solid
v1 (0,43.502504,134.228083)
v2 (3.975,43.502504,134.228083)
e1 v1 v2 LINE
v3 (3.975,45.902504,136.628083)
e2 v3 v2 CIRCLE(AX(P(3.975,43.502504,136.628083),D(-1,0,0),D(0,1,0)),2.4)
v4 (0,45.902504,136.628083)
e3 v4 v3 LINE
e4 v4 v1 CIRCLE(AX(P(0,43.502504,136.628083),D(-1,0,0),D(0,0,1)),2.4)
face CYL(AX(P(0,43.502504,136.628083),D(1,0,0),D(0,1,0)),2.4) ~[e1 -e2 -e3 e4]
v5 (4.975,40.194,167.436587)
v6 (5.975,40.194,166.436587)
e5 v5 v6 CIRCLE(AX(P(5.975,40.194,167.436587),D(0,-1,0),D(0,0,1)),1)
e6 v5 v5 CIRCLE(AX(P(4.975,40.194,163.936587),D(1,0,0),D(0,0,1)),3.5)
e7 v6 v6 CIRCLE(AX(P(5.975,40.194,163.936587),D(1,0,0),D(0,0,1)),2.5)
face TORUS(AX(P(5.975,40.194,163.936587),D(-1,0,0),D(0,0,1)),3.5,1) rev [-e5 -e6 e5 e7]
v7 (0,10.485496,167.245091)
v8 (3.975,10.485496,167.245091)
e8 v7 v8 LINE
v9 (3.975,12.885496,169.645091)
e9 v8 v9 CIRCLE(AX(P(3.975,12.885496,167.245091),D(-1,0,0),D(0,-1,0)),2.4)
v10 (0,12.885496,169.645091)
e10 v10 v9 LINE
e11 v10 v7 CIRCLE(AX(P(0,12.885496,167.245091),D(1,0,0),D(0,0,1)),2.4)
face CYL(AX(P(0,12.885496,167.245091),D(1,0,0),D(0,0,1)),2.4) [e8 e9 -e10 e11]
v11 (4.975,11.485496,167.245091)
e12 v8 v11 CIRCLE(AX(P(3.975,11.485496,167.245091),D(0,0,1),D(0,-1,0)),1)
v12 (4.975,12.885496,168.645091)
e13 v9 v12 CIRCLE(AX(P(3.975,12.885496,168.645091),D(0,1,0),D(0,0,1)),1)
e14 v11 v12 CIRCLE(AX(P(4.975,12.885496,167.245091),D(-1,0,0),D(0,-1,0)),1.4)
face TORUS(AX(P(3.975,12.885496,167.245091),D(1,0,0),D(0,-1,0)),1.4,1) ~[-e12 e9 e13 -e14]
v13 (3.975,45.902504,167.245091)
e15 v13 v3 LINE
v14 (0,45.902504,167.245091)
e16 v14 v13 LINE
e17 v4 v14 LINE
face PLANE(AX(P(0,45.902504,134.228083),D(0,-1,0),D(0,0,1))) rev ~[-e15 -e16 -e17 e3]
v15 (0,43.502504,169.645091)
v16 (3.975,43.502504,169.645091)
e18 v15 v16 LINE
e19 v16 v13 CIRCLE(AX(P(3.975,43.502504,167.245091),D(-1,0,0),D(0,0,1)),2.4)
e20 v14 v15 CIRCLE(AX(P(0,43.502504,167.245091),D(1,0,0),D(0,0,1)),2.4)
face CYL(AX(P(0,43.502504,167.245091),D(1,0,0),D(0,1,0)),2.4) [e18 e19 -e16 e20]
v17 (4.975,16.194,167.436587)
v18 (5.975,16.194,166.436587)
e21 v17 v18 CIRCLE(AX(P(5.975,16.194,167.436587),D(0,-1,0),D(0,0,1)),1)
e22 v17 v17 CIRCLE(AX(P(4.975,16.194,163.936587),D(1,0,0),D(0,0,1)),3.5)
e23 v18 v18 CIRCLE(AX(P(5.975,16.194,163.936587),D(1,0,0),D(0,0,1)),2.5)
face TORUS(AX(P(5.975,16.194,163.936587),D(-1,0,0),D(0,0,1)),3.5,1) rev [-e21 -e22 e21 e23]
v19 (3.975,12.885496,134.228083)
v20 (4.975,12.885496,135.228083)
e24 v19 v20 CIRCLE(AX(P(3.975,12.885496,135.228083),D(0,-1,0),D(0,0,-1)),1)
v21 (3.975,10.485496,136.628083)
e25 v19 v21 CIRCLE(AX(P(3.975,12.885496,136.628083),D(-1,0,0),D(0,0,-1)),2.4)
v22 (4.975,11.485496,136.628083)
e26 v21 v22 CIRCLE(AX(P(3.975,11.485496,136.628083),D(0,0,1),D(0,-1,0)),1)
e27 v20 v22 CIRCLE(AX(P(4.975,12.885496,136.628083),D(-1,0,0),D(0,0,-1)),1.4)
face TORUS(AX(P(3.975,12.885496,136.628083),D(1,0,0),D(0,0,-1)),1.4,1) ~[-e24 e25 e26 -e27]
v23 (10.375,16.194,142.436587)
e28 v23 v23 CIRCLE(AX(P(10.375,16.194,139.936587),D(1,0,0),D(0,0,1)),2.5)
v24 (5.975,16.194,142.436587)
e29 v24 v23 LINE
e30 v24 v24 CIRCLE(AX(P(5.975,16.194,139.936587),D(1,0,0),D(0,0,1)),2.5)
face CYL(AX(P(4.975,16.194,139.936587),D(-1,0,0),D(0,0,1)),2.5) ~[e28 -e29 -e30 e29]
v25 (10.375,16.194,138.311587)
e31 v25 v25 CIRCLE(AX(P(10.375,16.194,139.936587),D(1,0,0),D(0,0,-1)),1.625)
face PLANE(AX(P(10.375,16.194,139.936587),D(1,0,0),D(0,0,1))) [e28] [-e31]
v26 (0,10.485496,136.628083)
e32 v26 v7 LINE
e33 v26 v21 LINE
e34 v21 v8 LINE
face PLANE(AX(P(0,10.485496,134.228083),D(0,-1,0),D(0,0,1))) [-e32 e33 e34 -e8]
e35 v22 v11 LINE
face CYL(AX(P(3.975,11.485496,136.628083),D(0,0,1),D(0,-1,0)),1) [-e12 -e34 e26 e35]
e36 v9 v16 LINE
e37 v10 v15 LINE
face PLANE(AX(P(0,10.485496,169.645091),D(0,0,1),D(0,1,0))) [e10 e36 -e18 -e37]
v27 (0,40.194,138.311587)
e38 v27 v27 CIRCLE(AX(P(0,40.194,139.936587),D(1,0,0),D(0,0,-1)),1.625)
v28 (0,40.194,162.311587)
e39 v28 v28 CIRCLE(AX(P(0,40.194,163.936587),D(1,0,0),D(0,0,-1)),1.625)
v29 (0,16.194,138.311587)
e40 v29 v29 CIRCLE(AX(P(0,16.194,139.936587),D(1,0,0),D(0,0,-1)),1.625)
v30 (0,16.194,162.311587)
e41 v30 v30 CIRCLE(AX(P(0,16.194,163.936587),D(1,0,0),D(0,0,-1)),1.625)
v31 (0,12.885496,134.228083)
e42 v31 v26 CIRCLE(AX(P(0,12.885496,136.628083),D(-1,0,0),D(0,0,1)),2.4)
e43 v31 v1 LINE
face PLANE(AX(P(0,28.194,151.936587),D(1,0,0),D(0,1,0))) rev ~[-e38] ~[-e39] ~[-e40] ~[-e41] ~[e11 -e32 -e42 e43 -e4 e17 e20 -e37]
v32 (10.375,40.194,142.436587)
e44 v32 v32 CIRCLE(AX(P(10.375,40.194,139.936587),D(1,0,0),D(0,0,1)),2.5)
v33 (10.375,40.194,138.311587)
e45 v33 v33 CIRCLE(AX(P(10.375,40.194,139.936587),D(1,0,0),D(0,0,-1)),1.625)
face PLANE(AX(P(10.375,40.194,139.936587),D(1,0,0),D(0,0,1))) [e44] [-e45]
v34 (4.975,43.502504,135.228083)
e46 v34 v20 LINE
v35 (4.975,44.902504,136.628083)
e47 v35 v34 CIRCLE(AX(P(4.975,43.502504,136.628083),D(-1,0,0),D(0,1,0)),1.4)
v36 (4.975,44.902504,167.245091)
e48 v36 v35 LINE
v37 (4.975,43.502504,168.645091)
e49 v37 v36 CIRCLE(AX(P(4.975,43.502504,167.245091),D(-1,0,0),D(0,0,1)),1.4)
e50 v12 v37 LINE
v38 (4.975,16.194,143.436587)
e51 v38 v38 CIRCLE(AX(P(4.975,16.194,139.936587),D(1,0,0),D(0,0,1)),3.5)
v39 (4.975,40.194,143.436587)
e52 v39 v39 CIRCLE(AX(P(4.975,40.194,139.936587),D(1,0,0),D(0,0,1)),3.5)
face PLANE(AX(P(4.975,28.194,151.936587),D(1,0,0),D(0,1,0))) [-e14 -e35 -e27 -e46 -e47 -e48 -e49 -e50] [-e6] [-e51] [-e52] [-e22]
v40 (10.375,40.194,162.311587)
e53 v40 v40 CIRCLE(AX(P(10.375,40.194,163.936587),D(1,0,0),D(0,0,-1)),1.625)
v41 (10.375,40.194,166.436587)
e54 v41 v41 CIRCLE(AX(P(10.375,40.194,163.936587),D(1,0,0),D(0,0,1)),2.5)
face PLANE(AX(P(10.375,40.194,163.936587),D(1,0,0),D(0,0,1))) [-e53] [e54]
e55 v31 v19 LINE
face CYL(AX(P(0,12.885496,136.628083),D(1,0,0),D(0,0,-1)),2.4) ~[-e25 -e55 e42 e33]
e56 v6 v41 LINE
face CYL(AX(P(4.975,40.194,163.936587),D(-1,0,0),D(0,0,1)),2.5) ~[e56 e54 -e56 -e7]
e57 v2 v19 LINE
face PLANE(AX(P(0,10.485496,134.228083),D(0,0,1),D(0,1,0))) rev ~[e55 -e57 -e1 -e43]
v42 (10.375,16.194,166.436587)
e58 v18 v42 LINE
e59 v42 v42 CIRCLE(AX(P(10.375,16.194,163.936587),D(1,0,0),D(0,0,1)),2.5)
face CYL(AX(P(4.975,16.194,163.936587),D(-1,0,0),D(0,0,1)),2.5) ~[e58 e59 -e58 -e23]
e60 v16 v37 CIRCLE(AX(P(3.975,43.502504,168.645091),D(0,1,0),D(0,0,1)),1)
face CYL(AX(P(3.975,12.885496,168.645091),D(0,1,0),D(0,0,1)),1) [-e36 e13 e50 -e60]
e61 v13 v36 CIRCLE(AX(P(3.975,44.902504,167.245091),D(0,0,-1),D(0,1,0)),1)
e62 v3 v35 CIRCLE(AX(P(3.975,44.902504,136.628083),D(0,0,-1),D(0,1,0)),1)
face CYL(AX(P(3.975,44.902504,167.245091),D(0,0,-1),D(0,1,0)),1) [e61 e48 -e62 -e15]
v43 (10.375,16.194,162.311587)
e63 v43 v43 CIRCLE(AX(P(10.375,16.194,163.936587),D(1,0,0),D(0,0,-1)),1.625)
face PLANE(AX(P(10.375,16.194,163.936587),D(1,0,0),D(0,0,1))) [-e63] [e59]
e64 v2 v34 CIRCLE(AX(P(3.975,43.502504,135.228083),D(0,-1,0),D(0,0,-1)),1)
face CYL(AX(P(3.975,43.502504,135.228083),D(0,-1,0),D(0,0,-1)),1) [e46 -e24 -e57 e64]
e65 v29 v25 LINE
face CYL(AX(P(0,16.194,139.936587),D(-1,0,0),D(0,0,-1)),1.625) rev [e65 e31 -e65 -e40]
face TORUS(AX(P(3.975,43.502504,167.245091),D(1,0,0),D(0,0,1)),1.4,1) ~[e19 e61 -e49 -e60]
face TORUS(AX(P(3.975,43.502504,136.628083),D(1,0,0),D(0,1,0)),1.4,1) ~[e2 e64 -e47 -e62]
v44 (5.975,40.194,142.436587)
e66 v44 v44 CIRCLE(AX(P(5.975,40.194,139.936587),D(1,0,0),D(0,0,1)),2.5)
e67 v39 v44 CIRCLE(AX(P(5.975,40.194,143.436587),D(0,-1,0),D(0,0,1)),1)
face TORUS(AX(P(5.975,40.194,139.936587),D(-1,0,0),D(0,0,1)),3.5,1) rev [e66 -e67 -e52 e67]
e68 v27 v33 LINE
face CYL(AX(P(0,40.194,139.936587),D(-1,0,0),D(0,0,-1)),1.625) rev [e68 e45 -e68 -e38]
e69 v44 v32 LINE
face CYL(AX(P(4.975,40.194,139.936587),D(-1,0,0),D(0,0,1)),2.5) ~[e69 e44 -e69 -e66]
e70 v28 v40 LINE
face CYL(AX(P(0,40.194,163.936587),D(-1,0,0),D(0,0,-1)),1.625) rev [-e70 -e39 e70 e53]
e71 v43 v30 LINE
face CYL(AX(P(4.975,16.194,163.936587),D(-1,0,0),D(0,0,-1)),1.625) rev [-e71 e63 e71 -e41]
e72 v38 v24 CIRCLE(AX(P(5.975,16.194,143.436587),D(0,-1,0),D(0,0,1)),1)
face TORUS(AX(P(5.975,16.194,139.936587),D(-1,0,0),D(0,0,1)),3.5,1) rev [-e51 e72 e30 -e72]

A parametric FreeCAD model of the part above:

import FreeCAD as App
import Part
import Sketcher

V = App.Vector
Q = App.Units.Quantity


def edges_at(feature, points):
    """Names of the edges that pass closest to the given points."""
    edges = feature.Shape.Edges
    near = lambda p: min(range(len(edges)), key=lambda i: edges[i].distToShape(Part.Vertex(*p))[0])
    return sorted({f"Edge{near(p) + 1}" for p in points})

doc = App.newDocument("Part")
body = doc.addObject("PartDesign::Body", "Body")

sketch1 = body.newObject("Sketcher::SketchObject", "Sketch")
sketch1.AttachmentSupport = (doc.getObject("YZ_Plane"), [""])
sketch1.MapMode = "FlatFace"
sketch1.addGeometry([
    Part.LineSegment(V(10.485496, 169.645091, 0), V(10.485496, 134.228083, 0)),
    Part.LineSegment(V(10.485496, 134.228083, 0), V(45.902504, 134.228083, 0)),
    Part.LineSegment(V(45.902504, 134.228083, 0), V(45.902504, 169.645091, 0)),
    Part.LineSegment(V(45.902504, 169.645091, 0), V(10.485496, 169.645091, 0)),
    Part.Circle(V(16.194, 139.936587, 0), V(0, 0, 1), 1.625),
    Part.Circle(V(40.194, 139.936587, 0), V(0, 0, 1), 1.625),
    Part.Circle(V(16.194, 163.936587, 0), V(0, 0, 1), 1.625),
    Part.Circle(V(40.194, 163.936587, 0), V(0, 0, 1), 1.625),
], False)
sketch1.addConstraint([
    Sketcher.Constraint("Coincident", 0, 2, 1, 1),
    Sketcher.Constraint("Coincident", 1, 2, 2, 1),
    Sketcher.Constraint("Coincident", 2, 2, 3, 1),
    Sketcher.Constraint("Coincident", 3, 2, 0, 1),
    Sketcher.Constraint("Vertical", 0),
    Sketcher.Constraint("Horizontal", 1),
    Sketcher.Constraint("Vertical", 2),
    Sketcher.Constraint("Horizontal", 3),
    Sketcher.Constraint("Equal", 4, 5),
    Sketcher.Constraint("Equal", 5, 6),
    Sketcher.Constraint("Equal", 6, 7),
    Sketcher.Constraint("Horizontal", 4, 3, 5, 3),
    Sketcher.Constraint("Horizontal", 6, 3, 7, 3),
    Sketcher.Constraint("Vertical", 4, 3, 6, 3),
    Sketcher.Constraint("Vertical", 5, 3, 7, 3),
    Sketcher.Constraint("Equal", 3, 0),
    Sketcher.Constraint("Diameter", 4, Q("3.25 mm")),
    Sketcher.Constraint("DistanceX", 4, 3, 5, 3, Q("24 mm")),
    Sketcher.Constraint("DistanceY", 4, 3, 6, 3, Q("24 mm")),
    Sketcher.Constraint("DistanceX", -1, 1, 4, 3, Q("16.194 mm")),
    Sketcher.Constraint("DistanceX", 1, 1, 1, 2, Q("35.417008 mm")),
    Sketcher.Constraint("DistanceY", -1, 1, 2, 2, Q("169.645091 mm")),
    Sketcher.Constraint("DistanceY", -1, 1, 4, 3, Q("139.936587 mm")),
    Sketcher.Constraint("DistanceX", -1, 1, 0, 2, Q("10.485496 mm")),
])
pad1 = body.newObject("PartDesign::Pad", "Pad")
pad1.Profile = sketch1
pad1.Length = 4.975

sketch2 = body.newObject("Sketcher::SketchObject", "Sketch001")
sketch2.AttachmentSupport = (doc.getObject("YZ_Plane"), [""])
sketch2.MapMode = "FlatFace"
sketch2.AttachmentOffset = App.Placement(V(0, 0, 4.975), App.Rotation())
sketch2.addGeometry([
    Part.Circle(V(16.194, 163.936587, 0), V(0, 0, 1), 2.5),
    Part.Circle(V(16.194, 163.936587, 0), V(0, 0, 1), 1.625),
    Part.Circle(V(40.194, 163.936587, 0), V(0, 0, 1), 2.5),
    Part.Circle(V(40.194, 163.936587, 0), V(0, 0, 1), 1.625),
    Part.Circle(V(40.194, 139.936587, 0), V(0, 0, 1), 2.5),
    Part.Circle(V(40.194, 139.936587, 0), V(0, 0, 1), 1.625),
    Part.Circle(V(16.194, 139.936587, 0), V(0, 0, 1), 2.5),
    Part.Circle(V(16.194, 139.936587, 0), V(0, 0, 1), 1.625),
], False)
sketch2.addConstraint([
    Sketcher.Constraint("Coincident", 1, 3, 0, 3),
    Sketcher.Constraint("Coincident", 3, 3, 2, 3),
    Sketcher.Constraint("Coincident", 5, 3, 4, 3),
    Sketcher.Constraint("Coincident", 7, 3, 6, 3),
    Sketcher.Constraint("Equal", 0, 2),
    Sketcher.Constraint("Equal", 1, 3),
    Sketcher.Constraint("Equal", 2, 4),
    Sketcher.Constraint("Equal", 3, 5),
    Sketcher.Constraint("Equal", 4, 6),
    Sketcher.Constraint("Equal", 5, 7),
    Sketcher.Constraint("Horizontal", 1, 3, 2, 3),
    Sketcher.Constraint("Horizontal", 5, 3, 6, 3),
    Sketcher.Constraint("Vertical", 3, 3, 4, 3),
    Sketcher.Constraint("Vertical", 1, 3, 6, 3),
    Sketcher.Constraint("Diameter", 0, Q("5 mm")),
    Sketcher.Constraint("Diameter", 1, Q("3.25 mm")),
    Sketcher.Constraint("DistanceX", 0, 3, 2, 3, Q("24 mm")),
    Sketcher.Constraint("DistanceY", 4, 3, 2, 3, Q("24 mm")),
    Sketcher.Constraint("DistanceX", -1, 1, 0, 3, Q("16.194 mm")),
    Sketcher.Constraint("DistanceY", -1, 1, 0, 3, Q("163.936587 mm")),
])
pad2 = body.newObject("PartDesign::Pad", "Pad001")
pad2.Profile = sketch2
pad2.Length = 5.4
doc.recompute()

fillet = body.newObject("PartDesign::Fillet", "Fillet")
fillet.Base = (pad2, edges_at(pad2, [
    (2.487, 10.485, 169.645),
    (2.487, 45.903, 169.645),
    (2.487, 45.903, 134.228),
    (2.487, 10.485, 134.228),
]))
fillet.Radius = 2.4
doc.recompute()

fillet2 = body.newObject("PartDesign::Fillet", "Fillet001")
fillet2.Base = (fillet, edges_at(fillet, [
    (4.975, 16.194, 161.437),
    (4.975, 40.194, 161.437),
    (4.975, 40.194, 137.437),
    (4.975, 16.194, 137.437),
    (4.975, 28.194, 169.645),
    (4.975, 45.903, 151.937),
    (4.975, 10.485, 151.937),
    (4.975, 28.194, 134.228),
    (4.975, 11.188, 168.942),
    (4.975, 11.188, 134.931),
    (4.975, 45.2, 134.931),
    (4.975, 45.2, 168.942),
]))
fillet2.Radius = 1

doc.recompute()
